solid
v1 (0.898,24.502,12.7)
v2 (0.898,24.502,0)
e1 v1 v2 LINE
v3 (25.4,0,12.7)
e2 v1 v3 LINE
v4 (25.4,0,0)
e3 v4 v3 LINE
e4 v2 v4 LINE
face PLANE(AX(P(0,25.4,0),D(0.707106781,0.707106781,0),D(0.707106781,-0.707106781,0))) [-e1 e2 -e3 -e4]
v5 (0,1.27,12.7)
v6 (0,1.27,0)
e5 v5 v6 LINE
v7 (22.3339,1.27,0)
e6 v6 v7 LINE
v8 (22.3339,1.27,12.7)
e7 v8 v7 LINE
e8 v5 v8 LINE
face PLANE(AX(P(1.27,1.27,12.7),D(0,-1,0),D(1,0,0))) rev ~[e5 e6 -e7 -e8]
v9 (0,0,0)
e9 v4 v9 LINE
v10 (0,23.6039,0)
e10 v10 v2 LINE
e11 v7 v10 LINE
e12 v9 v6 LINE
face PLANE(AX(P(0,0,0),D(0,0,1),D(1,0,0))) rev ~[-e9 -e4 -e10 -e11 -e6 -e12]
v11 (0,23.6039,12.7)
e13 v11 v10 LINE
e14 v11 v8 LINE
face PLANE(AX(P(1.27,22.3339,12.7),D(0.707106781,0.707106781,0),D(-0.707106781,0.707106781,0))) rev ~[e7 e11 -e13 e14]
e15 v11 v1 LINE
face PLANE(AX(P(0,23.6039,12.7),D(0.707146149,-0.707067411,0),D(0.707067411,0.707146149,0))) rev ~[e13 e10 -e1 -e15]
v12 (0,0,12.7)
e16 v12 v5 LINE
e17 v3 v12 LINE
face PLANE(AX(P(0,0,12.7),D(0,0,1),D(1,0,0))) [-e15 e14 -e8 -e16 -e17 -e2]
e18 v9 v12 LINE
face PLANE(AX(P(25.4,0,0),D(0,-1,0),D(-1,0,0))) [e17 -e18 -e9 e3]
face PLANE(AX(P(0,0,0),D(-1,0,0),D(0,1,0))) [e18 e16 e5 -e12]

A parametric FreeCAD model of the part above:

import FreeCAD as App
import Part
import Sketcher
Q = App.Units.Quantity

doc = App.newDocument("Part")
params = doc.addObject("Spreadsheet::Sheet", "Params")
for row, (alias, value) in enumerate([
    ("sketch1_width", "1 in"),
    ("pad1_length", "0.5 in"),
    ("sketch2_length", "0.05 in"),
    ("pocket1_length", "1 in"),
], start=1):
    params.set(f"A{row}", alias)
    params.set(f"B{row}", "=" + value)
    params.setAlias(f"B{row}", alias)

body = doc.addObject("PartDesign::Body", "Body")

sketch1 = doc.addObject("Sketcher::SketchObject", "Sketch")
body.addObject(sketch1)
sketch1.AttachmentSupport = (doc.XY_Plane, [""])
sketch1.MapMode = "FlatFace"
sketch1.addGeometry(Part.LineSegment(App.Vector(0, 25, 0), App.Vector(0, 0, 0)), False)
sketch1.addGeometry(Part.LineSegment(App.Vector(0, 0, 0), App.Vector(25, 0, 0)), False)
sketch1.addGeometry(Part.LineSegment(App.Vector(25, 0, 0), App.Vector(0, 25, 0)), False)
sketch1.addConstraint(Sketcher.Constraint("Coincident", 0, 2, 1, 1))
sketch1.addConstraint(Sketcher.Constraint("Coincident", 1, 2, 2, 1))
sketch1.addConstraint(Sketcher.Constraint("Coincident", 2, 2, 0, 1))
sketch1.addConstraint(Sketcher.Constraint("Vertical", 0))
sketch1.addConstraint(Sketcher.Constraint("Horizontal", 1))
sketch1.addConstraint(Sketcher.Constraint("Coincident", 0, 2, -1, 1))
sketch1.addConstraint(Sketcher.Constraint("Equal", 1, 0))
sketch1.addConstraint(Sketcher.Constraint("DistanceX", 1, 1, 1, 2, Q("1 in")))
sketch1.setExpression("Constraints[7]", "Params.sketch1_width")
pad1 = doc.addObject("PartDesign::Pad", "Pad")
body.addObject(pad1)
pad1.Profile = sketch1
pad1.setExpression("Length", "Params.pad1_length")

sketch2 = doc.addObject("Sketcher::SketchObject", "Sketch001")
body.addObject(sketch2)
sketch2.AttachmentSupport = (doc.XY_Plane, [""])
sketch2.MapMode = "FlatFace"
sketch2.AttachmentOffset = App.Placement(App.Vector(0, 0, 0.5 * 25.4), App.Rotation())
sketch2.addGeometry(Part.LineSegment(App.Vector(0.9, 24.5, 0), App.Vector(0, 25.4, 0)), False)
sketch2.addGeometry(Part.LineSegment(App.Vector(0, 25.4, 0), App.Vector(0, 23.6, 0)), False)
sketch2.addGeometry(Part.LineSegment(App.Vector(0, 23.6, 0), App.Vector(0.9, 24.5, 0)), False)
sketch2.addGeometry(Part.LineSegment(App.Vector(22.3, 1.3, 0), App.Vector(0, 23.6, 0)), False)
sketch2.addGeometry(Part.LineSegment(App.Vector(0, 23.6, 0), App.Vector(0, 1.3, 0)), False)
sketch2.addGeometry(Part.LineSegment(App.Vector(0, 1.3, 0), App.Vector(22.3, 1.3, 0)), False)
sketch2.addConstraint(Sketcher.Constraint("Coincident", 0, 2, 1, 1))
sketch2.addConstraint(Sketcher.Constraint("Coincident", 1, 2, 2, 1))
sketch2.addConstraint(Sketcher.Constraint("Coincident", 2, 2, 0, 1))
sketch2.addConstraint(Sketcher.Constraint("Coincident", 3, 2, 4, 1))
sketch2.addConstraint(Sketcher.Constraint("Coincident", 4, 2, 5, 1))
sketch2.addConstraint(Sketcher.Constraint("Coincident", 5, 2, 3, 1))
sketch2.addConstraint(Sketcher.Constraint("Vertical", 1))
sketch2.addConstraint(Sketcher.Constraint("Vertical", 4))
sketch2.addConstraint(Sketcher.Constraint("Horizontal", 5))
sketch2.addConstraint(Sketcher.Constraint("Coincident", 3, 2, 1, 2))
sketch2.addConstraint(Sketcher.Constraint("PointOnObject", 0, 2, -2))
sketch2.addConstraint(Sketcher.Constraint("Perpendicular", 0, 2))
sketch2.addConstraint(Sketcher.Constraint("Perpendicular", 2, 3))
sketch2.addConstraint(Sketcher.Constraint("Equal", 5, 4))
sketch2.addConstraint(Sketcher.Constraint("Distance", 0, Q("0.05 in")))
sketch2.addConstraint(Sketcher.Constraint("DistanceY", -1, 1, 4, 2, Q("0.05 in")))
sketch2.addConstraint(Sketcher.Constraint("DistanceY", -1, 1, 0, 2, Q("1 in")))
sketch2.setExpression("Constraints[14]", "Params.sketch2_length")
pocket1 = doc.addObject("PartDesign::Pocket", "Pocket")
body.addObject(pocket1)
pocket1.Profile = sketch2
pocket1.setExpression("Length", "Params.pocket1_length")

doc.recompute()
